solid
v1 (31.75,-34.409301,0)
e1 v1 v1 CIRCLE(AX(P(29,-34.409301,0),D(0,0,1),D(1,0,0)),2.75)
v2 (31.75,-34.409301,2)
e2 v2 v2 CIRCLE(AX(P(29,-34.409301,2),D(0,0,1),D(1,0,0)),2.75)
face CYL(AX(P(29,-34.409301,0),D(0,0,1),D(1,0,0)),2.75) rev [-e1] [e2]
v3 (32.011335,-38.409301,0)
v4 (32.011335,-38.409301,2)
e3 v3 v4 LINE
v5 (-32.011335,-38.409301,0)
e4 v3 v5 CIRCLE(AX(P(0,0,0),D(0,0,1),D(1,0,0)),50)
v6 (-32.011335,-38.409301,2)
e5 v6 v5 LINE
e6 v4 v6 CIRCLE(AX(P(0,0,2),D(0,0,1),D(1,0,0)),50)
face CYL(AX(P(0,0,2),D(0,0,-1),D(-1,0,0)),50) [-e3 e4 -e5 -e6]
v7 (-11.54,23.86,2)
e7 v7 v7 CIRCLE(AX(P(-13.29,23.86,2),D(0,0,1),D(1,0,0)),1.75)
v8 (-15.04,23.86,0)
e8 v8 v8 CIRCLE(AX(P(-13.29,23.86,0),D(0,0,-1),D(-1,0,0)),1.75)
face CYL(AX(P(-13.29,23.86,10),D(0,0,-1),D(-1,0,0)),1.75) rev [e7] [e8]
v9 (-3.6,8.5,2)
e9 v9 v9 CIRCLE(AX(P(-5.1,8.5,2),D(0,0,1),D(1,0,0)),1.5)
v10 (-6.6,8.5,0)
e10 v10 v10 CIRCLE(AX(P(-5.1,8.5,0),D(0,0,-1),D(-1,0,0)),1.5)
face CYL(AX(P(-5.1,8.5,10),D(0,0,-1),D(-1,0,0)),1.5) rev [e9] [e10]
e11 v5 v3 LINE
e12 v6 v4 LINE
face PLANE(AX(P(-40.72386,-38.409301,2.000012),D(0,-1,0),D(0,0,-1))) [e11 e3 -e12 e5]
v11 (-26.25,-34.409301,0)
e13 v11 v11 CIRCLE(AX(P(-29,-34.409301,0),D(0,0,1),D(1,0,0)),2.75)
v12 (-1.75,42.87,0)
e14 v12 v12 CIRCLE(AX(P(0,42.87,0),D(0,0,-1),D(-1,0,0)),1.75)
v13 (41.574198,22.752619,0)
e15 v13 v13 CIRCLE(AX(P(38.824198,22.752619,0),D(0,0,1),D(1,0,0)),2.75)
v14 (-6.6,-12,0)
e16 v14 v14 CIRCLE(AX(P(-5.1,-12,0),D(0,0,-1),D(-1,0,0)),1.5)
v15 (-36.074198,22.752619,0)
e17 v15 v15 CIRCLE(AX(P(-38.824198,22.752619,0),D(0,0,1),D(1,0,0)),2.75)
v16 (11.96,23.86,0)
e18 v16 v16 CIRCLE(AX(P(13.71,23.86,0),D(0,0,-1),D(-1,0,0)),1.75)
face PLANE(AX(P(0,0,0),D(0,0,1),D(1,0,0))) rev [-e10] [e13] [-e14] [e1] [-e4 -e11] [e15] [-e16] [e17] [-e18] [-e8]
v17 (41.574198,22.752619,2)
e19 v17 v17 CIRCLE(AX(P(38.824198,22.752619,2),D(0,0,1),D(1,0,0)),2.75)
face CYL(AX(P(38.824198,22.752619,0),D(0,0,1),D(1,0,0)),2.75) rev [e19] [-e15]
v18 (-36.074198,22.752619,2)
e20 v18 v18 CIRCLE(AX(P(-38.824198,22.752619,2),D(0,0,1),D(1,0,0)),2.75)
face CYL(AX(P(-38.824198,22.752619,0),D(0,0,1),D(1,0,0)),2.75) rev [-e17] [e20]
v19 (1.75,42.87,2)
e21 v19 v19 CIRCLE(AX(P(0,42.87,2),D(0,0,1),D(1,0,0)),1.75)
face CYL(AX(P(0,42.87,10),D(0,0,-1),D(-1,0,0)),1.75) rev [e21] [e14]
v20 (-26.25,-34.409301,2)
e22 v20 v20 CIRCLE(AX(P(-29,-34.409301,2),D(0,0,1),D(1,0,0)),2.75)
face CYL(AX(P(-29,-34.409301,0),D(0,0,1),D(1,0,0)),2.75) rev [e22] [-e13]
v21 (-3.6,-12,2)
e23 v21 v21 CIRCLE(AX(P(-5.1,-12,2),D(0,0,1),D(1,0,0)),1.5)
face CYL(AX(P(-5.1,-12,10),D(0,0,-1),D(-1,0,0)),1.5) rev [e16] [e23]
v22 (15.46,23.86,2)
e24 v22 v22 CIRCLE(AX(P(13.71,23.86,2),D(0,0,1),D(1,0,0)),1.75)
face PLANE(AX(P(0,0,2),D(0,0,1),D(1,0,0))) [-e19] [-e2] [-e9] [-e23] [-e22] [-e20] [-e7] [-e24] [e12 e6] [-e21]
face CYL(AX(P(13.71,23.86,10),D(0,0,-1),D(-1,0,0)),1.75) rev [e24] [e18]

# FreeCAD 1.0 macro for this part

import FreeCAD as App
import Part
import Sketcher
Q = App.Units.Quantity

doc = App.newDocument("Part")
body = doc.addObject("PartDesign::Body", "Body")

sketch1 = body.newObject("Sketcher::SketchObject", "Sketch")
sketch1.AttachmentSupport = (doc.getObject("XY_Plane"), [""])
sketch1.MapMode = "FlatFace"
sketch1.addGeometry(Part.Circle(App.Vector(0, 0, 0), App.Vector(0, 0, 1), 50), False)
sketch1.addConstraint([
    Sketcher.Constraint("Coincident", 0, 3, -1, 1),
    Sketcher.Constraint("Diameter", 0, Q("100 mm")),
])
pad1 = body.newObject("PartDesign::Pad", "Pad")
pad1.Profile = sketch1
pad1.Length = 2

sketch2 = body.newObject("Sketcher::SketchObject", "Sketch001")
sketch2.AttachmentSupport = (doc.getObject("XY_Plane"), [""])
sketch2.MapMode = "FlatFace"
sketch2.AttachmentOffset = App.Placement(App.Vector(0, 0, 2), App.Rotation())
sketch2.addGeometry([
    Part.Circle(App.Vector(-29, -34.4, 0), App.Vector(0, 0, 1), 2.8),
    Part.Circle(App.Vector(29, -34.4, 0), App.Vector(0, 0, 1), 2.8),
    Part.Circle(App.Vector(-38.8, 22.8, 0), App.Vector(0, 0, 1), 2.8),
    Part.Circle(App.Vector(38.8, 22.8, 0), App.Vector(0, 0, 1), 2.8),
], False)
sketch2.addConstraint([
    Sketcher.Constraint("Equal", 0, 1),
    Sketcher.Constraint("Equal", 1, 2),
    Sketcher.Constraint("Equal", 2, 3),
    Sketcher.Constraint("Symmetric", 0, 3, 1, 3, -2),
    Sketcher.Constraint("Symmetric", 2, 3, 3, 3, -2),
    Sketcher.Constraint("Diameter", 0, Q("5.5 mm")),
    Sketcher.Constraint("DistanceX", 0, 3, -1, 1, Q("29 mm")),
    Sketcher.Constraint("DistanceY", 0, 3, -1, 1, Q("34.409301 mm")),
    Sketcher.Constraint("DistanceY", -1, 1, 2, 3, Q("22.752619 mm")),
    Sketcher.Constraint("DistanceX", 2, 3, -1, 1, Q("38.824198 mm")),
])
pocket1 = body.newObject("PartDesign::Pocket", "Pocket")
pocket1.Profile = sketch2
pocket1.Length = 2

sketch3 = body.newObject("Sketcher::SketchObject", "Sketch002")
sketch3.AttachmentSupport = (doc.getObject("XY_Plane"), [""])
sketch3.MapMode = "FlatFace"
sketch3.AttachmentOffset = App.Placement(App.Vector(0, 0, 2), App.Rotation())
sketch3.addGeometry([
    Part.LineSegment(App.Vector(45, -38, 0), App.Vector(-41, -38, 0)),
    Part.LineSegment(App.Vector(-41, -38, 0), App.Vector(2, -68, 0)),
    Part.LineSegment(App.Vector(2, -68, 0), App.Vector(45, -38, 0)),
], False)
sketch3.addConstraint([
    Sketcher.Constraint("Coincident", 0, 2, 1, 1),
    Sketcher.Constraint("Coincident", 1, 2, 2, 1),
    Sketcher.Constraint("Coincident", 2, 2, 0, 1),
    Sketcher.Constraint("Horizontal", 0),
    Sketcher.Constraint("Equal", 1, 2),
    Sketcher.Constraint("DistanceX", 0, 2, 0, 1, Q("85.294599 mm")),
    Sketcher.Constraint("DistanceY", 0, 2, -1, 1, Q("38.409301 mm")),
    Sketcher.Constraint("DistanceX", 0, 2, -1, 1, Q("40.72386 mm")),
    Sketcher.Constraint("Distance", 1, Q("51.908888 mm")),
])
pocket2 = body.newObject("PartDesign::Pocket", "Pocket001")
pocket2.Profile = sketch3
pocket2.Type = "ThroughAll"
pocket2.Midplane = True

sketch4 = body.newObject("Sketcher::SketchObject", "Sketch003")
sketch4.AttachmentSupport = (doc.getObject("XY_Plane"), [""])
sketch4.MapMode = "FlatFace"
sketch4.addGeometry([
    Part.Circle(App.Vector(-5.1, 8.5, 0), App.Vector(0, 0, 1), 1.5),
    Part.Circle(App.Vector(-5.1, -12, 0), App.Vector(0, 0, 1), 1.5),
    Part.Circle(App.Vector(13.7, 23.9, 0), App.Vector(0, 0, 1), 1.8),
    Part.Circle(App.Vector(-13.3, 23.9, 0), App.Vector(0, 0, 1), 1.8),
    Part.Circle(App.Vector(0, 42.9, 0), App.Vector(0, 0, 1), 1.8),
], False)
sketch4.addConstraint([
    Sketcher.Constraint("Equal", 0, 1),
    Sketcher.Constraint("Equal", 2, 3),
    Sketcher.Constraint("Equal", 3, 4),
    Sketcher.Constraint("PointOnObject", 4, 3, -2),
    Sketcher.Constraint("Horizontal", 2, 3, 3, 3),
    Sketcher.Constraint("Vertical", 0, 3, 1, 3),
    Sketcher.Constraint("Diameter", 0, Q("3 mm")),
    Sketcher.Constraint("Diameter", 2, Q("3.5 mm")),
    Sketcher.Constraint("DistanceY", 1, 3, -1, 1, Q("12 mm")),
    Sketcher.Constraint("DistanceX", 3, 3, 2, 3, Q("27 mm")),
    Sketcher.Constraint("DistanceX", 0, 3, -1, 1, Q("5.1 mm")),
    Sketcher.Constraint("DistanceY", -1, 1, 0, 3, Q("8.5 mm")),
    Sketcher.Constraint("DistanceX", -1, 1, 2, 3, Q("13.71 mm")),
    Sketcher.Constraint("DistanceY", -1, 1, 2, 3, Q("23.86 mm")),
    Sketcher.Constraint("DistanceY", -1, 1, 4, 3, Q("42.87 mm")),
])
pocket3 = body.newObject("PartDesign::Pocket", "Pocket002")
pocket3.Profile = sketch4
pocket3.Length = 10
pocket3.Reversed = True

doc.recompute()
